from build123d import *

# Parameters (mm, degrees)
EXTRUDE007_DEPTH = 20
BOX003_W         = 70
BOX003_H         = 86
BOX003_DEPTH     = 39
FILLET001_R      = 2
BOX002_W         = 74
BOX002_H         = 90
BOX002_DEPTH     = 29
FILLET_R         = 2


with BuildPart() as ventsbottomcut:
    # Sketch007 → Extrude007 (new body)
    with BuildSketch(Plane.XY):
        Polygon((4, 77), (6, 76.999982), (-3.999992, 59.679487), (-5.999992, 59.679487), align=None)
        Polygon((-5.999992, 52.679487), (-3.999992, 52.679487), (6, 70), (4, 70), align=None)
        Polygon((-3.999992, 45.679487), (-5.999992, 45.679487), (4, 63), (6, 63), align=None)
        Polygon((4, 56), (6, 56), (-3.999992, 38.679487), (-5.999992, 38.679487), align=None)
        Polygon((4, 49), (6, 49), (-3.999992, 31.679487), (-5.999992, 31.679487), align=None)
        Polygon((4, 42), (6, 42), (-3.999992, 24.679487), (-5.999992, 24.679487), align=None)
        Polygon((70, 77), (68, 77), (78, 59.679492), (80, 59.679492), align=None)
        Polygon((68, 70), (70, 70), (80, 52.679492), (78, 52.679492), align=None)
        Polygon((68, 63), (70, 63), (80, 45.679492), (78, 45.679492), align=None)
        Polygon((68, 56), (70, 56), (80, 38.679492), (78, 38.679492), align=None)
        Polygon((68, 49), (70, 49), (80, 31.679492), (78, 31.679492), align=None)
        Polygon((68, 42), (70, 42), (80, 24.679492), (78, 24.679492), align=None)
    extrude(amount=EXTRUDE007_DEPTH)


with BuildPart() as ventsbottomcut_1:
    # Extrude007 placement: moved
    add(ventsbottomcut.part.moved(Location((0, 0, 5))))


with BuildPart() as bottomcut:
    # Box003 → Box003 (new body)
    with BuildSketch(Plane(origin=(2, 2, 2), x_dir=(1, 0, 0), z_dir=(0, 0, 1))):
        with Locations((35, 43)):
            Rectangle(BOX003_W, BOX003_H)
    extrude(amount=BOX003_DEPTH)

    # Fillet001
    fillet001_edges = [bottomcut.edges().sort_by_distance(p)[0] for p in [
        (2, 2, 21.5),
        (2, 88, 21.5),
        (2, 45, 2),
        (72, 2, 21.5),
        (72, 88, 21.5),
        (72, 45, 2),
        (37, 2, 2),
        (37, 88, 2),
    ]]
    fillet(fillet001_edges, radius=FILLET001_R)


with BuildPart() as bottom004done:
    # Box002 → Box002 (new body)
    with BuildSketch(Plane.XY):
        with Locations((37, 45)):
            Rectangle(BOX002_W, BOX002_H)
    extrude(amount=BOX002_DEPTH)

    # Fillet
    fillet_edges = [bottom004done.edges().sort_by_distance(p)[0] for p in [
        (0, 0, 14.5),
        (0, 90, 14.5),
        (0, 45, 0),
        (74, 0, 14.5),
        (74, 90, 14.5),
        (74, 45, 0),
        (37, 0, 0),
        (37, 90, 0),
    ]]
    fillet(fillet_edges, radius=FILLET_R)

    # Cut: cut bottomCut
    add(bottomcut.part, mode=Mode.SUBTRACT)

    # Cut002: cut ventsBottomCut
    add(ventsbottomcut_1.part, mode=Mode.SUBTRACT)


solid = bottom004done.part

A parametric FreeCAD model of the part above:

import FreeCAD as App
import Part
import Sketcher
Q = App.Units.Quantity


def edges_at(feature, points):
    """Names of the edges that pass closest to the given points."""
    edges = feature.Shape.Edges
    near = lambda p: min(range(len(edges)), key=lambda i: edges[i].distToShape(Part.Vertex(*p))[0])
    return sorted({f"Edge{near(p) + 1}" for p in points})

doc = App.newDocument("Part")
body = doc.addObject("PartDesign::Body", "Body")
body.AllowCompound = True

# Sketch on XY plane
sketch1 = body.newObject("Sketcher::SketchObject", "Sketch")
sketch1.AttachmentSupport = (doc.getObject("XY_Plane"), [""])
sketch1.MapMode = "FlatFace"
sketch1.addGeometry(Part.LineSegment(App.Vector(6, 77, 0), App.Vector(4, 77, 0)), False)
sketch1.addGeometry(Part.LineSegment(App.Vector(4, 77, 0), App.Vector(-6, 59.7, 0)), False)
sketch1.addGeometry(Part.LineSegment(App.Vector(-6, 59.7, 0), App.Vector(-4, 59.7, 0)), False)
sketch1.addGeometry(Part.LineSegment(App.Vector(-4, 59.7, 0), App.Vector(6, 77, 0)), False)
sketch1.addGeometry(Part.LineSegment(App.Vector(-6, 52.7, 0), App.Vector(-4, 52.7, 0)), False)
sketch1.addGeometry(Part.LineSegment(App.Vector(-4, 52.7, 0), App.Vector(6, 70, 0)), False)
sketch1.addGeometry(Part.LineSegment(App.Vector(6, 70, 0), App.Vector(4, 70, 0)), False)
sketch1.addGeometry(Part.LineSegment(App.Vector(4, 70, 0), App.Vector(-6, 52.7, 0)), False)
sketch1.addGeometry(Part.LineSegment(App.Vector(-6, 45.7, 0), App.Vector(-4, 45.7, 0)), False)
sketch1.addGeometry(Part.LineSegment(App.Vector(-4, 45.7, 0), App.Vector(6, 63, 0)), False)
sketch1.addGeometry(Part.LineSegment(App.Vector(6, 63, 0), App.Vector(4, 63, 0)), False)
sketch1.addGeometry(Part.LineSegment(App.Vector(4, 63, 0), App.Vector(-6, 45.7, 0)), False)
sketch1.addGeometry(Part.LineSegment(App.Vector(6, 56, 0), App.Vector(4, 56, 0)), False)
sketch1.addGeometry(Part.LineSegment(App.Vector(4, 56, 0), App.Vector(-6, 38.7, 0)), False)
sketch1.addGeometry(Part.LineSegment(App.Vector(-6, 38.7, 0), App.Vector(-4, 38.7, 0)), False)
sketch1.addGeometry(Part.LineSegment(App.Vector(-4, 38.7, 0), App.Vector(6, 56, 0)), False)
sketch1.addGeometry(Part.LineSegment(App.Vector(6, 49, 0), App.Vector(4, 49, 0)), False)
sketch1.addGeometry(Part.LineSegment(App.Vector(4, 49, 0), App.Vector(-6, 31.7, 0)), False)
sketch1.addGeometry(Part.LineSegment(App.Vector(-6, 31.7, 0), App.Vector(-4, 31.7, 0)), False)
sketch1.addGeometry(Part.LineSegment(App.Vector(-4, 31.7, 0), App.Vector(6, 49, 0)), False)
sketch1.addGeometry(Part.LineSegment(App.Vector(6, 42, 0), App.Vector(4, 42, 0)), False)
sketch1.addGeometry(Part.LineSegment(App.Vector(4, 42, 0), App.Vector(-6, 24.7, 0)), False)
sketch1.addGeometry(Part.LineSegment(App.Vector(-6, 24.7, 0), App.Vector(-4, 24.7, 0)), False)
sketch1.addGeometry(Part.LineSegment(App.Vector(-4, 24.7, 0), App.Vector(6, 42, 0)), False)
sketch1.addGeometry(Part.LineSegment(App.Vector(70, 77, 0), App.Vector(68, 77, 0)), False)
sketch1.addGeometry(Part.LineSegment(App.Vector(68, 77, 0), App.Vector(78, 59.7, 0)), False)
sketch1.addGeometry(Part.LineSegment(App.Vector(78, 59.7, 0), App.Vector(80, 59.7, 0)), False)
sketch1.addGeometry(Part.LineSegment(App.Vector(80, 59.7, 0), App.Vector(70, 77, 0)), False)
sketch1.addGeometry(Part.LineSegment(App.Vector(70, 70, 0), App.Vector(68, 70, 0)), False)
sketch1.addGeometry(Part.LineSegment(App.Vector(68, 70, 0), App.Vector(78, 52.7, 0)), False)
sketch1.addGeometry(Part.LineSegment(App.Vector(78, 52.7, 0), App.Vector(80, 52.7, 0)), False)
sketch1.addGeometry(Part.LineSegment(App.Vector(80, 52.7, 0), App.Vector(70, 70, 0)), False)
sketch1.addGeometry(Part.LineSegment(App.Vector(70, 63, 0), App.Vector(68, 63, 0)), False)
sketch1.addGeometry(Part.LineSegment(App.Vector(68, 63, 0), App.Vector(78, 45.7, 0)), False)
sketch1.addGeometry(Part.LineSegment(App.Vector(78, 45.7, 0), App.Vector(80, 45.7, 0)), False)
sketch1.addGeometry(Part.LineSegment(App.Vector(80, 45.7, 0), App.Vector(70, 63, 0)), False)
sketch1.addGeometry(Part.LineSegment(App.Vector(70, 56, 0), App.Vector(68, 56, 0)), False)
sketch1.addGeometry(Part.LineSegment(App.Vector(68, 56, 0), App.Vector(78, 38.7, 0)), False)
sketch1.addGeometry(Part.LineSegment(App.Vector(78, 38.7, 0), App.Vector(80, 38.7, 0)), False)
sketch1.addGeometry(Part.LineSegment(App.Vector(80, 38.7, 0), App.Vector(70, 56, 0)), False)
sketch1.addGeometry(Part.LineSegment(App.Vector(70, 49, 0), App.Vector(68, 49, 0)), False)
sketch1.addGeometry(Part.LineSegment(App.Vector(68, 49, 0), App.Vector(78, 31.7, 0)), False)
sketch1.addGeometry(Part.LineSegment(App.Vector(78, 31.7, 0), App.Vector(80, 31.7, 0)), False)
sketch1.addGeometry(Part.LineSegment(App.Vector(80, 31.7, 0), App.Vector(70, 49, 0)), False)
sketch1.addGeometry(Part.LineSegment(App.Vector(70, 42, 0), App.Vector(68, 42, 0)), False)
sketch1.addGeometry(Part.LineSegment(App.Vector(68, 42, 0), App.Vector(78, 24.7, 0)), False)
sketch1.addGeometry(Part.LineSegment(App.Vector(78, 24.7, 0), App.Vector(80, 24.7, 0)), False)
sketch1.addGeometry(Part.LineSegment(App.Vector(80, 24.7, 0), App.Vector(70, 42, 0)), False)
sketch1.addConstraint(Sketcher.Constraint("Coincident", 0, 2, 1, 1))
sketch1.addConstraint(Sketcher.Constraint("Coincident", 1, 2, 2, 1))
sketch1.addConstraint(Sketcher.Constraint("Coincident", 2, 2, 3, 1))
sketch1.addConstraint(Sketcher.Constraint("Coincident", 3, 2, 0, 1))
sketch1.addConstraint(Sketcher.Constraint("Coincident", 4, 2, 5, 1))
sketch1.addConstraint(Sketcher.Constraint("Coincident", 5, 2, 6, 1))
sketch1.addConstraint(Sketcher.Constraint("Coincident", 6, 2, 7, 1))
sketch1.addConstraint(Sketcher.Constraint("Coincident", 7, 2, 4, 1))
sketch1.addConstraint(Sketcher.Constraint("Coincident", 8, 2, 9, 1))
sketch1.addConstraint(Sketcher.Constraint("Coincident", 9, 2, 10, 1))
sketch1.addConstraint(Sketcher.Constraint("Coincident", 10, 2, 11, 1))
sketch1.addConstraint(Sketcher.Constraint("Coincident", 11, 2, 8, 1))
sketch1.addConstraint(Sketcher.Constraint("Coincident", 12, 2, 13, 1))
sketch1.addConstraint(Sketcher.Constraint("Coincident", 13, 2, 14, 1))
sketch1.addConstraint(Sketcher.Constraint("Coincident", 14, 2, 15, 1))
sketch1.addConstraint(Sketcher.Constraint("Coincident", 15, 2, 12, 1))
sketch1.addConstraint(Sketcher.Constraint("Coincident", 16, 2, 17, 1))
sketch1.addConstraint(Sketcher.Constraint("Coincident", 17, 2, 18, 1))
sketch1.addConstraint(Sketcher.Constraint("Coincident", 18, 2, 19, 1))
sketch1.addConstraint(Sketcher.Constraint("Coincident", 19, 2, 16, 1))
sketch1.addConstraint(Sketcher.Constraint("Coincident", 20, 2, 21, 1))
sketch1.addConstraint(Sketcher.Constraint("Coincident", 21, 2, 22, 1))
sketch1.addConstraint(Sketcher.Constraint("Coincident", 22, 2, 23, 1))
sketch1.addConstraint(Sketcher.Constraint("Coincident", 23, 2, 20, 1))
sketch1.addConstraint(Sketcher.Constraint("Coincident", 24, 2, 25, 1))
sketch1.addConstraint(Sketcher.Constraint("Coincident", 25, 2, 26, 1))
sketch1.addConstraint(Sketcher.Constraint("Coincident", 26, 2, 27, 1))
sketch1.addConstraint(Sketcher.Constraint("Coincident", 27, 2, 24, 1))
sketch1.addConstraint(Sketcher.Constraint("Coincident", 28, 2, 29, 1))
sketch1.addConstraint(Sketcher.Constraint("Coincident", 29, 2, 30, 1))
sketch1.addConstraint(Sketcher.Constraint("Coincident", 30, 2, 31, 1))
sketch1.addConstraint(Sketcher.Constraint("Coincident", 31, 2, 28, 1))
sketch1.addConstraint(Sketcher.Constraint("Coincident", 32, 2, 33, 1))
sketch1.addConstraint(Sketcher.Constraint("Coincident", 33, 2, 34, 1))
sketch1.addConstraint(Sketcher.Constraint("Coincident", 34, 2, 35, 1))
sketch1.addConstraint(Sketcher.Constraint("Coincident", 35, 2, 32, 1))
sketch1.addConstraint(Sketcher.Constraint("Coincident", 36, 2, 37, 1))
sketch1.addConstraint(Sketcher.Constraint("Coincident", 37, 2, 38, 1))
sketch1.addConstraint(Sketcher.Constraint("Coincident", 38, 2, 39, 1))
sketch1.addConstraint(Sketcher.Constraint("Coincident", 39, 2, 36, 1))
sketch1.addConstraint(Sketcher.Constraint("Coincident", 40, 2, 41, 1))
sketch1.addConstraint(Sketcher.Constraint("Coincident", 41, 2, 42, 1))
sketch1.addConstraint(Sketcher.Constraint("Coincident", 42, 2, 43, 1))
sketch1.addConstraint(Sketcher.Constraint("Coincident", 43, 2, 40, 1))
sketch1.addConstraint(Sketcher.Constraint("Coincident", 44, 2, 45, 1))
sketch1.addConstraint(Sketcher.Constraint("Coincident", 45, 2, 46, 1))
sketch1.addConstraint(Sketcher.Constraint("Coincident", 46, 2, 47, 1))
sketch1.addConstraint(Sketcher.Constraint("Coincident", 47, 2, 44, 1))
sketch1.addConstraint(Sketcher.Constraint("Horizontal", 2))
sketch1.addConstraint(Sketcher.Constraint("Horizontal", 4))
sketch1.addConstraint(Sketcher.Constraint("Horizontal", 6))
sketch1.addConstraint(Sketcher.Constraint("Horizontal", 8))
sketch1.addConstraint(Sketcher.Constraint("Horizontal", 10))
sketch1.addConstraint(Sketcher.Constraint("Horizontal", 12))
sketch1.addConstraint(Sketcher.Constraint("Horizontal", 14))
sketch1.addConstraint(Sketcher.Constraint("Horizontal", 16))
sketch1.addConstraint(Sketcher.Constraint("Horizontal", 18))
sketch1.addConstraint(Sketcher.Constraint("Horizontal", 20))
sketch1.addConstraint(Sketcher.Constraint("Horizontal", 22))
sketch1.addConstraint(Sketcher.Constraint("Horizontal", 24))
sketch1.addConstraint(Sketcher.Constraint("Horizontal", 26))
sketch1.addConstraint(Sketcher.Constraint("Horizontal", 28))
sketch1.addConstraint(Sketcher.Constraint("Horizontal", 30))
sketch1.addConstraint(Sketcher.Constraint("Horizontal", 32))
sketch1.addConstraint(Sketcher.Constraint("Horizontal", 34))
sketch1.addConstraint(Sketcher.Constraint("Horizontal", 36))
sketch1.addConstraint(Sketcher.Constraint("Horizontal", 38))
sketch1.addConstraint(Sketcher.Constraint("Horizontal", 40))
sketch1.addConstraint(Sketcher.Constraint("Horizontal", 42))
sketch1.addConstraint(Sketcher.Constraint("Horizontal", 44))
sketch1.addConstraint(Sketcher.Constraint("Horizontal", 46))
sketch1.addConstraint(Sketcher.Constraint("Parallel", 1, 3))
sketch1.addConstraint(Sketcher.Constraint("Parallel", 3, 5))
sketch1.addConstraint(Sketcher.Constraint("Parallel", 5, 7))
sketch1.addConstraint(Sketcher.Constraint("Parallel", 7, 9))
sketch1.addConstraint(Sketcher.Constraint("Parallel", 9, 11))
sketch1.addConstraint(Sketcher.Constraint("Parallel", 11, 13))
sketch1.addConstraint(Sketcher.Constraint("Parallel", 13, 15))
sketch1.addConstraint(Sketcher.Constraint("Parallel", 15, 17))
sketch1.addConstraint(Sketcher.Constraint("Parallel", 17, 19))
sketch1.addConstraint(Sketcher.Constraint("Parallel", 19, 21))
sketch1.addConstraint(Sketcher.Constraint("Parallel", 21, 23))
sketch1.addConstraint(Sketcher.Constraint("Parallel", 25, 27))
sketch1.addConstraint(Sketcher.Constraint("Parallel", 27, 29))
sketch1.addConstraint(Sketcher.Constraint("Parallel", 29, 31))
sketch1.addConstraint(Sketcher.Constraint("Parallel", 31, 33))
sketch1.addConstraint(Sketcher.Constraint("Parallel", 33, 35))
sketch1.addConstraint(Sketcher.Constraint("Parallel", 35, 37))
sketch1.addConstraint(Sketcher.Constraint("Parallel", 37, 39))
sketch1.addConstraint(Sketcher.Constraint("Parallel", 39, 41))
sketch1.addConstraint(Sketcher.Constraint("Parallel", 41, 43))
sketch1.addConstraint(Sketcher.Constraint("Parallel", 43, 45))
sketch1.addConstraint(Sketcher.Constraint("Parallel", 45, 47))
sketch1.addConstraint(Sketcher.Constraint("Horizontal", 0, 2, 24, 2))
sketch1.addConstraint(Sketcher.Constraint("Horizontal", 6, 2, 28, 2))
sketch1.addConstraint(Sketcher.Constraint("Horizontal", 10, 2, 32, 2))
sketch1.addConstraint(Sketcher.Constraint("Horizontal", 15, 2, 36, 2))
sketch1.addConstraint(Sketcher.Constraint("Horizontal", 19, 2, 40, 2))
sketch1.addConstraint(Sketcher.Constraint("Horizontal", 23, 2, 44, 2))
sketch1.addConstraint(Sketcher.Constraint("Vertical", 2, 2, 4, 2))
sketch1.addConstraint(Sketcher.Constraint("Vertical", 3, 2, 5, 2))
sketch1.addConstraint(Sketcher.Constraint("Vertical", 0, 2, 6, 2))
sketch1.addConstraint(Sketcher.Constraint("Vertical", 1, 2, 7, 2))
sketch1.addConstraint(Sketcher.Constraint("Vertical", 4, 2, 8, 2))
sketch1.addConstraint(Sketcher.Constraint("Vertical", 5, 2, 9, 2))
sketch1.addConstraint(Sketcher.Constraint("Vertical", 6, 2, 10, 2))
sketch1.addConstraint(Sketcher.Constraint("Vertical", 10, 2, 12, 2))
sketch1.addConstraint(Sketcher.Constraint("Vertical", 11, 2, 13, 2))
sketch1.addConstraint(Sketcher.Constraint("Vertical", 8, 2, 14, 2))
sketch1.addConstraint(Sketcher.Constraint("Vertical", 12, 2, 16, 2))
sketch1.addConstraint(Sketcher.Constraint("Vertical", 13, 2, 17, 2))
sketch1.addConstraint(Sketcher.Constraint("Vertical", 14, 2, 18, 2))
sketch1.addConstraint(Sketcher.Constraint("Vertical", 16, 2, 20, 2))
sketch1.addConstraint(Sketcher.Constraint("Vertical", 17, 2, 21, 2))
sketch1.addConstraint(Sketcher.Constraint("Vertical", 18, 2, 22, 2))
sketch1.addConstraint(Sketcher.Constraint("Vertical", 24, 2, 28, 2))
sketch1.addConstraint(Sketcher.Constraint("Vertical", 25, 2, 29, 2))
sketch1.addConstraint(Sketcher.Constraint("Vertical", 26, 2, 30, 2))
sketch1.addConstraint(Sketcher.Constraint("Vertical", 28, 2, 32, 2))
sketch1.addConstraint(Sketcher.Constraint("Vertical", 29, 2, 33, 2))
sketch1.addConstraint(Sketcher.Constraint("Vertical", 30, 2, 34, 2))
sketch1.addConstraint(Sketcher.Constraint("Vertical", 32, 2, 36, 2))
sketch1.addConstraint(Sketcher.Constraint("Vertical", 33, 2, 37, 2))
sketch1.addConstraint(Sketcher.Constraint("Vertical", 34, 2, 38, 2))
sketch1.addConstraint(Sketcher.Constraint("Vertical", 36, 2, 40, 2))
sketch1.addConstraint(Sketcher.Constraint("Vertical", 37, 2, 41, 2))
sketch1.addConstraint(Sketcher.Constraint("Vertical", 38, 2, 42, 2))
sketch1.addConstraint(Sketcher.Constraint("Vertical", 40, 2, 44, 2))
sketch1.addConstraint(Sketcher.Constraint("Vertical", 41, 2, 45, 2))
sketch1.addConstraint(Sketcher.Constraint("Vertical", 42, 2, 46, 2))
sketch1.addConstraint(Sketcher.Constraint("Equal", 22, 24))
sketch1.addConstraint(Sketcher.Constraint("Equal", 23, 25))
sketch1.addConstraint(Sketcher.Constraint("DistanceX", 2, 1, 2, 2, Q("2 mm")))
sketch1.addConstraint(Sketcher.Constraint("Angle", 3, Q("60.000001 deg")))
sketch1.addConstraint(Sketcher.Constraint("Angle", 25, Q("-60 deg")))
sketch1.addConstraint(Sketcher.Constraint("Distance", 1, Q("20 mm")))
sketch1.addConstraint(Sketcher.Constraint("DistanceX", -1, 1, 0, 2, Q("4 mm")))
sketch1.addConstraint(Sketcher.Constraint("DistanceY", -1, 1, 0, 2, Q("77 mm")))
sketch1.addConstraint(Sketcher.Constraint("DistanceY", -1, 1, 5, 2, Q("70 mm")))
sketch1.addConstraint(Sketcher.Constraint("DistanceY", -1, 1, 9, 2, Q("63 mm")))
sketch1.addConstraint(Sketcher.Constraint("DistanceY", -1, 1, 12, 2, Q("56 mm")))
sketch1.addConstraint(Sketcher.Constraint("DistanceY", -1, 1, 16, 2, Q("49 mm")))
sketch1.addConstraint(Sketcher.Constraint("DistanceY", -1, 1, 20, 2, Q("42 mm")))
sketch1.addConstraint(Sketcher.Constraint("DistanceX", -1, 1, 24, 2, Q("68 mm")))
pad1 = body.newObject("PartDesign::Pad", "Pad")
pad1.Profile = sketch1
pad1.Length = 20
body2 = doc.addObject("PartDesign::Body", "Body001")
body2.AllowCompound = True
doc.recompute()

body.Placement = App.Placement(App.Vector(0, 0, 5), App.Rotation(App.Vector(0, 0, 1), 0))
boolean = body2.newObject("PartDesign::Boolean", "Boolean")
boolean.Type = "Fuse"
boolean.addObjects([body])
body3 = doc.addObject("PartDesign::Body", "Body002")

# Sketch on XY plane
sketch2 = body3.newObject("Sketcher::SketchObject", "Sketch001")
sketch2.AttachmentSupport = (doc.getObject("XY_Plane002"), [""])
sketch2.MapMode = "FlatFace"
sketch2.AttachmentOffset = App.Placement(App.Vector(0, 0, 2), App.Rotation())
sketch2.addGeometry(Part.LineSegment(App.Vector(2, 88, 0), App.Vector(2, 2, 0)), False)
sketch2.addGeometry(Part.LineSegment(App.Vector(2, 2, 0), App.Vector(72, 2, 0)), False)
sketch2.addGeometry(Part.LineSegment(App.Vector(72, 2, 0), App.Vector(72, 88, 0)), False)
sketch2.addGeometry(Part.LineSegment(App.Vector(72, 88, 0), App.Vector(2, 88, 0)), False)
sketch2.addConstraint(Sketcher.Constraint("Coincident", 0, 2, 1, 1))
sketch2.addConstraint(Sketcher.Constraint("Coincident", 1, 2, 2, 1))
sketch2.addConstraint(Sketcher.Constraint("Coincident", 2, 2, 3, 1))
sketch2.addConstraint(Sketcher.Constraint("Coincident", 3, 2, 0, 1))
sketch2.addConstraint(Sketcher.Constraint("Vertical", 0))
sketch2.addConstraint(Sketcher.Constraint("Horizontal", 1))
sketch2.addConstraint(Sketcher.Constraint("Vertical", 2))
sketch2.addConstraint(Sketcher.Constraint("Horizontal", 3))
sketch2.addConstraint(Sketcher.Constraint("DistanceX", 1, 1, 1, 2, Q("70 mm")))
sketch2.addConstraint(Sketcher.Constraint("DistanceY", 0, 2, 0, 1, Q("86 mm")))
sketch2.addConstraint(Sketcher.Constraint("DistanceX", -1, 1, 0, 2, Q("2 mm")))
sketch2.addConstraint(Sketcher.Constraint("DistanceY", -1, 1, 0, 2, Q("2 mm")))
pad2 = body3.newObject("PartDesign::Pad", "Pad001")
pad2.Profile = sketch2
pad2.Length = 39
doc.recompute()

fillet = body3.newObject("PartDesign::Fillet", "Fillet")
fillet.Base = (pad2, edges_at(pad2, [
    (2, 2, 21.5),
    (2, 88, 21.5),
    (2, 45, 2),
    (72, 2, 21.5),
    (72, 88, 21.5),
    (72, 45, 2),
    (37, 2, 2),
    (37, 88, 2),
]))
fillet.Radius = 2
body4 = doc.addObject("PartDesign::Body", "Body003")

# Sketch on XY plane
sketch3 = body4.newObject("Sketcher::SketchObject", "Sketch002")
sketch3.AttachmentSupport = (doc.getObject("XY_Plane003"), [""])
sketch3.MapMode = "FlatFace"
sketch3.addGeometry(Part.LineSegment(App.Vector(0, 90, 0), App.Vector(0, 0, 0)), False)
sketch3.addGeometry(Part.LineSegment(App.Vector(0, 0, 0), App.Vector(74, 0, 0)), False)
sketch3.addGeometry(Part.LineSegment(App.Vector(74, 0, 0), App.Vector(74, 90, 0)), False)
sketch3.addGeometry(Part.LineSegment(App.Vector(74, 90, 0), App.Vector(0, 90, 0)), False)
sketch3.addConstraint(Sketcher.Constraint("Coincident", 0, 2, 1, 1))
sketch3.addConstraint(Sketcher.Constraint("Coincident", 1, 2, 2, 1))
sketch3.addConstraint(Sketcher.Constraint("Coincident", 2, 2, 3, 1))
sketch3.addConstraint(Sketcher.Constraint("Coincident", 3, 2, 0, 1))
sketch3.addConstraint(Sketcher.Constraint("Vertical", 0))
sketch3.addConstraint(Sketcher.Constraint("Horizontal", 1))
sketch3.addConstraint(Sketcher.Constraint("Vertical", 2))
sketch3.addConstraint(Sketcher.Constraint("Horizontal", 3))
sketch3.addConstraint(Sketcher.Constraint("Coincident", 0, 2, -1, 1))
sketch3.addConstraint(Sketcher.Constraint("DistanceX", 1, 1, 1, 2, Q("74 mm")))
sketch3.addConstraint(Sketcher.Constraint("DistanceY", 0, 2, 0, 1, Q("90 mm")))
pad3 = body4.newObject("PartDesign::Pad", "Pad002")
pad3.Profile = sketch3
pad3.Length = 29
doc.recompute()

fillet2 = body4.newObject("PartDesign::Fillet", "Fillet001")
fillet2.Base = (pad3, edges_at(pad3, [
    (0, 0, 14.5),
    (0, 90, 14.5),
    (0, 45, 0),
    (74, 0, 14.5),
    (74, 90, 14.5),
    (74, 45, 0),
    (37, 0, 0),
    (37, 90, 0),
]))
fillet2.Radius = 2
doc.recompute()

boolean2 = body4.newObject("PartDesign::Boolean", "Boolean001")
boolean2.Type = "Cut"
boolean2.addObjects([body3])
doc.recompute()

boolean3 = body4.newObject("PartDesign::Boolean", "Boolean002")
boolean3.Type = "Cut"
boolean3.addObjects([body2])

doc.recompute()
